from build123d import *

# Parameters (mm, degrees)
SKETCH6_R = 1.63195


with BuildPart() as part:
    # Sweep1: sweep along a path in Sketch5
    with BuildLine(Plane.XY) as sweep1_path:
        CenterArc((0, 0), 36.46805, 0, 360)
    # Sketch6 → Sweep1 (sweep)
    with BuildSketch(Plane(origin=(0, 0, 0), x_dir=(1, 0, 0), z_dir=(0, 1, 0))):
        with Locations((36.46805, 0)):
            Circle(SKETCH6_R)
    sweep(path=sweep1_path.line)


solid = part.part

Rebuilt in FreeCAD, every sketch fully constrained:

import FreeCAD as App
import Part
import Sketcher

doc = App.newDocument("Part")
body = doc.addObject("PartDesign::Body", "Body")

# Sketch on XZ plane
sketch1 = body.newObject("Sketcher::SketchObject", "Sketch")
sketch1.AttachmentSupport = (doc.getObject("XZ_Plane"), [""])
sketch1.MapMode = "FlatFace"
sketch1.addGeometry(Part.Circle(App.Vector(36.5, 0, 0), App.Vector(0, 0, 1), 1.6), False)
sketch1.addConstraint(Sketcher.Constraint("PointOnObject", 0, 3, -1))
sketch1.addConstraint(Sketcher.Constraint("Diameter", 0, 3.2639))
sketch1.addConstraint(Sketcher.Constraint("DistanceX", -1, 1, 0, 3, 36.46805))

# Sketch on XY plane
sketch2 = body.newObject("Sketcher::SketchObject", "Sketch001")
sketch2.AttachmentSupport = (doc.getObject("XY_Plane"), [""])
sketch2.MapMode = "FlatFace"
sketch2.addGeometry(Part.Circle(App.Vector(0, 0, 0), App.Vector(0, 0, 1), 36), False)
sketch2.addConstraint(Sketcher.Constraint("Coincident", 0, 3, -1, 1))
sketch2.addConstraint(Sketcher.Constraint("Diameter", 0, 72.9361))
doc.recompute()

additivepipe = body.newObject("PartDesign::AdditivePipe", "AdditivePipe")
additivepipe.Profile = sketch1
additivepipe.Spine = (sketch2, ["Edge1"])

doc.recompute()
